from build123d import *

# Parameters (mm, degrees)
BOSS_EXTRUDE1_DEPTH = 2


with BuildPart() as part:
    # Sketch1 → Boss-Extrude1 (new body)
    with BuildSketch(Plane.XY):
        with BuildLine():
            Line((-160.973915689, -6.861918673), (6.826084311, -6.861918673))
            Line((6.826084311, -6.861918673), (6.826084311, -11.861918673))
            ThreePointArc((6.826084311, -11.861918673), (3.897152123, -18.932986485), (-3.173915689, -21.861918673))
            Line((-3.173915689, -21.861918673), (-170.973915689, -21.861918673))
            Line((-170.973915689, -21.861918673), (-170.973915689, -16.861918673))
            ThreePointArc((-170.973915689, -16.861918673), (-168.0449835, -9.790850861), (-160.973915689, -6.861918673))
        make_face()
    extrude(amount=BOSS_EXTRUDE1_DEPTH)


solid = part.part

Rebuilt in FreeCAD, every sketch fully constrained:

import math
import FreeCAD as App
import Part
import Sketcher
from FreeCAD import Vector

doc = App.newDocument("Part")
body = doc.addObject("PartDesign::Body", "Body")

# Sketch on XY plane
sketch1 = body.newObject("Sketcher::SketchObject", "Sketch")
sketch1.AttachmentSupport = (doc.getObject("XY_Plane"), [""])
sketch1.MapMode = "FlatFace"
sketch1.addGeometry(Part.LineSegment(Vector(7, -7, 0), Vector(-161, -7, 0)), False)
sketch1.addGeometry(Part.ArcOfCircle(Part.Circle(Vector(-161, -17, 0), Vector(0, 0, 1), 10), math.radians(90), math.radians(180)), False)
sketch1.addGeometry(Part.LineSegment(Vector(-171, -17, 0), Vector(-171, -22, 0)), False)
sketch1.addGeometry(Part.LineSegment(Vector(-171, -22, 0), Vector(-3, -22, 0)), False)
sketch1.addGeometry(Part.ArcOfCircle(Part.Circle(Vector(-3, -12, 0), Vector(0, 0, 1), 10), math.radians(-90), math.radians(0)), False)
sketch1.addGeometry(Part.LineSegment(Vector(7, -12, 0), Vector(7, -7, 0)), False)
sketch1.addConstraint(Sketcher.Constraint("Tangent", 0, 2, 1, 1))
sketch1.addConstraint(Sketcher.Constraint("Tangent", 1, 2, 2, 1))
sketch1.addConstraint(Sketcher.Constraint("Coincident", 2, 2, 3, 1))
sketch1.addConstraint(Sketcher.Constraint("Tangent", 3, 2, 4, 1))
sketch1.addConstraint(Sketcher.Constraint("Tangent", 4, 2, 5, 1))
sketch1.addConstraint(Sketcher.Constraint("Coincident", 5, 2, 0, 1))
sketch1.addConstraint(Sketcher.Constraint("Horizontal", 0))
sketch1.addConstraint(Sketcher.Constraint("Vertical", 2))
sketch1.addConstraint(Sketcher.Constraint("Horizontal", 3))
sketch1.addConstraint(Sketcher.Constraint("Vertical", 5))
sketch1.addConstraint(Sketcher.Constraint("Equal", 1, 4))
sketch1.addConstraint(Sketcher.Constraint("Radius", 1, 10.0))
sketch1.addConstraint(Sketcher.Constraint("DistanceY", 2, 2, 2, 1, 5.0))
sketch1.addConstraint(Sketcher.Constraint("DistanceX", 0, 2, 0, 1, 167.8))
sketch1.addConstraint(Sketcher.Constraint("DistanceY", 1, 3, -1, 1, 16.861919))
sketch1.addConstraint(Sketcher.Constraint("DistanceX", 1, 3, -1, 1, 160.973916))
pad1 = body.newObject("PartDesign::Pad", "Pad")
pad1.Profile = sketch1
pad1.Length = 2

doc.recompute()
